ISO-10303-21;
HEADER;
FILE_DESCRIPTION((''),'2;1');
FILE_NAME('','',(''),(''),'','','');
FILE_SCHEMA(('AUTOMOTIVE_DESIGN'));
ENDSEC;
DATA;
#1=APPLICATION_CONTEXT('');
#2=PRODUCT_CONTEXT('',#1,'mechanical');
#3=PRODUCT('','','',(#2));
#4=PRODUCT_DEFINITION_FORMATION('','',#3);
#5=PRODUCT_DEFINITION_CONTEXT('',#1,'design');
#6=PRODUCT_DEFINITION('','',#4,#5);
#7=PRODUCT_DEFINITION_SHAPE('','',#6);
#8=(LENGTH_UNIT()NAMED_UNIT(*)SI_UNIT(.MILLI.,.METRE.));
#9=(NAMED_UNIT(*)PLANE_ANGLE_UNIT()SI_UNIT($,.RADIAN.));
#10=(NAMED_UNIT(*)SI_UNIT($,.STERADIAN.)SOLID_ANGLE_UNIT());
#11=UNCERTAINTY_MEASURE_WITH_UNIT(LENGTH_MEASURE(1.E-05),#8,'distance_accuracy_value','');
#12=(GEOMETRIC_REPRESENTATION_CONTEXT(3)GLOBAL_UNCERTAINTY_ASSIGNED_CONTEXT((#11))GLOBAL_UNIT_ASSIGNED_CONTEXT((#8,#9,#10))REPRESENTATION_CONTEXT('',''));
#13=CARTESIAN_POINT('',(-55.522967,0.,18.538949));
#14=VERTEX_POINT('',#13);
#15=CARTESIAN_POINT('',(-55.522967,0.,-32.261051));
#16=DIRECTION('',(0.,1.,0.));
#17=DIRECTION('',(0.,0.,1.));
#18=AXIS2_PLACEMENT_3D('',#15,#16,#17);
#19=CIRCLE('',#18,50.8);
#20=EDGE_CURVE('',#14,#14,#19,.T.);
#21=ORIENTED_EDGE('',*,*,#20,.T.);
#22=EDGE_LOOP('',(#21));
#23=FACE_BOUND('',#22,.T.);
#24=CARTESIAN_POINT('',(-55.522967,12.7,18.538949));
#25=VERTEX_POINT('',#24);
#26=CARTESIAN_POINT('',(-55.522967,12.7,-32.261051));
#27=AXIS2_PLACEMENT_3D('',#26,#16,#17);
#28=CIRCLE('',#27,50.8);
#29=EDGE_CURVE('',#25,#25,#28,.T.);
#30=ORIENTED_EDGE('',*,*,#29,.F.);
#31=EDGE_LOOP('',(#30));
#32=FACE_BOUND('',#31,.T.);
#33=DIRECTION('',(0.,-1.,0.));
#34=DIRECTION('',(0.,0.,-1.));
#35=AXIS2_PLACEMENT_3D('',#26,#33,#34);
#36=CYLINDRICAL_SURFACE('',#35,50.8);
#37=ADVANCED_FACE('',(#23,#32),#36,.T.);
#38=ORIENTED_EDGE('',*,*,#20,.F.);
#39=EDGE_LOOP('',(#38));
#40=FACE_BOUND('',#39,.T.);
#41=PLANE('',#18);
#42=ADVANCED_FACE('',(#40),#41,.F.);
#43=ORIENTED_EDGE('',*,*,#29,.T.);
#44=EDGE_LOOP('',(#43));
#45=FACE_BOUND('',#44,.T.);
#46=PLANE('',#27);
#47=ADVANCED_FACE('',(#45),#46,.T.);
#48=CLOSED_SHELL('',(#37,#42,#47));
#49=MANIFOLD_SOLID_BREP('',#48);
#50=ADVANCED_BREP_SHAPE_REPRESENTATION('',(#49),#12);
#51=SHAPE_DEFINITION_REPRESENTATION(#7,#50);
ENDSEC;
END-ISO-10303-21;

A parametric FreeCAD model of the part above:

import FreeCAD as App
import Part
import Sketcher
Q = App.Units.Quantity

doc = App.newDocument("Part")
body = doc.addObject("PartDesign::Body", "Body")

sketch1 = body.newObject("Sketcher::SketchObject", "Sketch")
sketch1.AttachmentSupport = (doc.getObject("XZ_Plane"), [""])
sketch1.MapMode = "FlatFace"
sketch1.addGeometry(Part.Circle(App.Vector(-56, -32, 0), App.Vector(0, 0, 1), 51), False)
sketch1.addConstraint([
    Sketcher.Constraint("Diameter", 0, Q("4 in")),
    Sketcher.Constraint("DistanceY", 0, 3, -1, 1, 32.261051),
    Sketcher.Constraint("DistanceX", 0, 3, -1, 1, 55.522967),
])
pad1 = body.newObject("PartDesign::Pad", "Pad")
pad1.Profile = sketch1
pad1.Length = Q("0.5 in")
pad1.Reversed = True

doc.recompute()
